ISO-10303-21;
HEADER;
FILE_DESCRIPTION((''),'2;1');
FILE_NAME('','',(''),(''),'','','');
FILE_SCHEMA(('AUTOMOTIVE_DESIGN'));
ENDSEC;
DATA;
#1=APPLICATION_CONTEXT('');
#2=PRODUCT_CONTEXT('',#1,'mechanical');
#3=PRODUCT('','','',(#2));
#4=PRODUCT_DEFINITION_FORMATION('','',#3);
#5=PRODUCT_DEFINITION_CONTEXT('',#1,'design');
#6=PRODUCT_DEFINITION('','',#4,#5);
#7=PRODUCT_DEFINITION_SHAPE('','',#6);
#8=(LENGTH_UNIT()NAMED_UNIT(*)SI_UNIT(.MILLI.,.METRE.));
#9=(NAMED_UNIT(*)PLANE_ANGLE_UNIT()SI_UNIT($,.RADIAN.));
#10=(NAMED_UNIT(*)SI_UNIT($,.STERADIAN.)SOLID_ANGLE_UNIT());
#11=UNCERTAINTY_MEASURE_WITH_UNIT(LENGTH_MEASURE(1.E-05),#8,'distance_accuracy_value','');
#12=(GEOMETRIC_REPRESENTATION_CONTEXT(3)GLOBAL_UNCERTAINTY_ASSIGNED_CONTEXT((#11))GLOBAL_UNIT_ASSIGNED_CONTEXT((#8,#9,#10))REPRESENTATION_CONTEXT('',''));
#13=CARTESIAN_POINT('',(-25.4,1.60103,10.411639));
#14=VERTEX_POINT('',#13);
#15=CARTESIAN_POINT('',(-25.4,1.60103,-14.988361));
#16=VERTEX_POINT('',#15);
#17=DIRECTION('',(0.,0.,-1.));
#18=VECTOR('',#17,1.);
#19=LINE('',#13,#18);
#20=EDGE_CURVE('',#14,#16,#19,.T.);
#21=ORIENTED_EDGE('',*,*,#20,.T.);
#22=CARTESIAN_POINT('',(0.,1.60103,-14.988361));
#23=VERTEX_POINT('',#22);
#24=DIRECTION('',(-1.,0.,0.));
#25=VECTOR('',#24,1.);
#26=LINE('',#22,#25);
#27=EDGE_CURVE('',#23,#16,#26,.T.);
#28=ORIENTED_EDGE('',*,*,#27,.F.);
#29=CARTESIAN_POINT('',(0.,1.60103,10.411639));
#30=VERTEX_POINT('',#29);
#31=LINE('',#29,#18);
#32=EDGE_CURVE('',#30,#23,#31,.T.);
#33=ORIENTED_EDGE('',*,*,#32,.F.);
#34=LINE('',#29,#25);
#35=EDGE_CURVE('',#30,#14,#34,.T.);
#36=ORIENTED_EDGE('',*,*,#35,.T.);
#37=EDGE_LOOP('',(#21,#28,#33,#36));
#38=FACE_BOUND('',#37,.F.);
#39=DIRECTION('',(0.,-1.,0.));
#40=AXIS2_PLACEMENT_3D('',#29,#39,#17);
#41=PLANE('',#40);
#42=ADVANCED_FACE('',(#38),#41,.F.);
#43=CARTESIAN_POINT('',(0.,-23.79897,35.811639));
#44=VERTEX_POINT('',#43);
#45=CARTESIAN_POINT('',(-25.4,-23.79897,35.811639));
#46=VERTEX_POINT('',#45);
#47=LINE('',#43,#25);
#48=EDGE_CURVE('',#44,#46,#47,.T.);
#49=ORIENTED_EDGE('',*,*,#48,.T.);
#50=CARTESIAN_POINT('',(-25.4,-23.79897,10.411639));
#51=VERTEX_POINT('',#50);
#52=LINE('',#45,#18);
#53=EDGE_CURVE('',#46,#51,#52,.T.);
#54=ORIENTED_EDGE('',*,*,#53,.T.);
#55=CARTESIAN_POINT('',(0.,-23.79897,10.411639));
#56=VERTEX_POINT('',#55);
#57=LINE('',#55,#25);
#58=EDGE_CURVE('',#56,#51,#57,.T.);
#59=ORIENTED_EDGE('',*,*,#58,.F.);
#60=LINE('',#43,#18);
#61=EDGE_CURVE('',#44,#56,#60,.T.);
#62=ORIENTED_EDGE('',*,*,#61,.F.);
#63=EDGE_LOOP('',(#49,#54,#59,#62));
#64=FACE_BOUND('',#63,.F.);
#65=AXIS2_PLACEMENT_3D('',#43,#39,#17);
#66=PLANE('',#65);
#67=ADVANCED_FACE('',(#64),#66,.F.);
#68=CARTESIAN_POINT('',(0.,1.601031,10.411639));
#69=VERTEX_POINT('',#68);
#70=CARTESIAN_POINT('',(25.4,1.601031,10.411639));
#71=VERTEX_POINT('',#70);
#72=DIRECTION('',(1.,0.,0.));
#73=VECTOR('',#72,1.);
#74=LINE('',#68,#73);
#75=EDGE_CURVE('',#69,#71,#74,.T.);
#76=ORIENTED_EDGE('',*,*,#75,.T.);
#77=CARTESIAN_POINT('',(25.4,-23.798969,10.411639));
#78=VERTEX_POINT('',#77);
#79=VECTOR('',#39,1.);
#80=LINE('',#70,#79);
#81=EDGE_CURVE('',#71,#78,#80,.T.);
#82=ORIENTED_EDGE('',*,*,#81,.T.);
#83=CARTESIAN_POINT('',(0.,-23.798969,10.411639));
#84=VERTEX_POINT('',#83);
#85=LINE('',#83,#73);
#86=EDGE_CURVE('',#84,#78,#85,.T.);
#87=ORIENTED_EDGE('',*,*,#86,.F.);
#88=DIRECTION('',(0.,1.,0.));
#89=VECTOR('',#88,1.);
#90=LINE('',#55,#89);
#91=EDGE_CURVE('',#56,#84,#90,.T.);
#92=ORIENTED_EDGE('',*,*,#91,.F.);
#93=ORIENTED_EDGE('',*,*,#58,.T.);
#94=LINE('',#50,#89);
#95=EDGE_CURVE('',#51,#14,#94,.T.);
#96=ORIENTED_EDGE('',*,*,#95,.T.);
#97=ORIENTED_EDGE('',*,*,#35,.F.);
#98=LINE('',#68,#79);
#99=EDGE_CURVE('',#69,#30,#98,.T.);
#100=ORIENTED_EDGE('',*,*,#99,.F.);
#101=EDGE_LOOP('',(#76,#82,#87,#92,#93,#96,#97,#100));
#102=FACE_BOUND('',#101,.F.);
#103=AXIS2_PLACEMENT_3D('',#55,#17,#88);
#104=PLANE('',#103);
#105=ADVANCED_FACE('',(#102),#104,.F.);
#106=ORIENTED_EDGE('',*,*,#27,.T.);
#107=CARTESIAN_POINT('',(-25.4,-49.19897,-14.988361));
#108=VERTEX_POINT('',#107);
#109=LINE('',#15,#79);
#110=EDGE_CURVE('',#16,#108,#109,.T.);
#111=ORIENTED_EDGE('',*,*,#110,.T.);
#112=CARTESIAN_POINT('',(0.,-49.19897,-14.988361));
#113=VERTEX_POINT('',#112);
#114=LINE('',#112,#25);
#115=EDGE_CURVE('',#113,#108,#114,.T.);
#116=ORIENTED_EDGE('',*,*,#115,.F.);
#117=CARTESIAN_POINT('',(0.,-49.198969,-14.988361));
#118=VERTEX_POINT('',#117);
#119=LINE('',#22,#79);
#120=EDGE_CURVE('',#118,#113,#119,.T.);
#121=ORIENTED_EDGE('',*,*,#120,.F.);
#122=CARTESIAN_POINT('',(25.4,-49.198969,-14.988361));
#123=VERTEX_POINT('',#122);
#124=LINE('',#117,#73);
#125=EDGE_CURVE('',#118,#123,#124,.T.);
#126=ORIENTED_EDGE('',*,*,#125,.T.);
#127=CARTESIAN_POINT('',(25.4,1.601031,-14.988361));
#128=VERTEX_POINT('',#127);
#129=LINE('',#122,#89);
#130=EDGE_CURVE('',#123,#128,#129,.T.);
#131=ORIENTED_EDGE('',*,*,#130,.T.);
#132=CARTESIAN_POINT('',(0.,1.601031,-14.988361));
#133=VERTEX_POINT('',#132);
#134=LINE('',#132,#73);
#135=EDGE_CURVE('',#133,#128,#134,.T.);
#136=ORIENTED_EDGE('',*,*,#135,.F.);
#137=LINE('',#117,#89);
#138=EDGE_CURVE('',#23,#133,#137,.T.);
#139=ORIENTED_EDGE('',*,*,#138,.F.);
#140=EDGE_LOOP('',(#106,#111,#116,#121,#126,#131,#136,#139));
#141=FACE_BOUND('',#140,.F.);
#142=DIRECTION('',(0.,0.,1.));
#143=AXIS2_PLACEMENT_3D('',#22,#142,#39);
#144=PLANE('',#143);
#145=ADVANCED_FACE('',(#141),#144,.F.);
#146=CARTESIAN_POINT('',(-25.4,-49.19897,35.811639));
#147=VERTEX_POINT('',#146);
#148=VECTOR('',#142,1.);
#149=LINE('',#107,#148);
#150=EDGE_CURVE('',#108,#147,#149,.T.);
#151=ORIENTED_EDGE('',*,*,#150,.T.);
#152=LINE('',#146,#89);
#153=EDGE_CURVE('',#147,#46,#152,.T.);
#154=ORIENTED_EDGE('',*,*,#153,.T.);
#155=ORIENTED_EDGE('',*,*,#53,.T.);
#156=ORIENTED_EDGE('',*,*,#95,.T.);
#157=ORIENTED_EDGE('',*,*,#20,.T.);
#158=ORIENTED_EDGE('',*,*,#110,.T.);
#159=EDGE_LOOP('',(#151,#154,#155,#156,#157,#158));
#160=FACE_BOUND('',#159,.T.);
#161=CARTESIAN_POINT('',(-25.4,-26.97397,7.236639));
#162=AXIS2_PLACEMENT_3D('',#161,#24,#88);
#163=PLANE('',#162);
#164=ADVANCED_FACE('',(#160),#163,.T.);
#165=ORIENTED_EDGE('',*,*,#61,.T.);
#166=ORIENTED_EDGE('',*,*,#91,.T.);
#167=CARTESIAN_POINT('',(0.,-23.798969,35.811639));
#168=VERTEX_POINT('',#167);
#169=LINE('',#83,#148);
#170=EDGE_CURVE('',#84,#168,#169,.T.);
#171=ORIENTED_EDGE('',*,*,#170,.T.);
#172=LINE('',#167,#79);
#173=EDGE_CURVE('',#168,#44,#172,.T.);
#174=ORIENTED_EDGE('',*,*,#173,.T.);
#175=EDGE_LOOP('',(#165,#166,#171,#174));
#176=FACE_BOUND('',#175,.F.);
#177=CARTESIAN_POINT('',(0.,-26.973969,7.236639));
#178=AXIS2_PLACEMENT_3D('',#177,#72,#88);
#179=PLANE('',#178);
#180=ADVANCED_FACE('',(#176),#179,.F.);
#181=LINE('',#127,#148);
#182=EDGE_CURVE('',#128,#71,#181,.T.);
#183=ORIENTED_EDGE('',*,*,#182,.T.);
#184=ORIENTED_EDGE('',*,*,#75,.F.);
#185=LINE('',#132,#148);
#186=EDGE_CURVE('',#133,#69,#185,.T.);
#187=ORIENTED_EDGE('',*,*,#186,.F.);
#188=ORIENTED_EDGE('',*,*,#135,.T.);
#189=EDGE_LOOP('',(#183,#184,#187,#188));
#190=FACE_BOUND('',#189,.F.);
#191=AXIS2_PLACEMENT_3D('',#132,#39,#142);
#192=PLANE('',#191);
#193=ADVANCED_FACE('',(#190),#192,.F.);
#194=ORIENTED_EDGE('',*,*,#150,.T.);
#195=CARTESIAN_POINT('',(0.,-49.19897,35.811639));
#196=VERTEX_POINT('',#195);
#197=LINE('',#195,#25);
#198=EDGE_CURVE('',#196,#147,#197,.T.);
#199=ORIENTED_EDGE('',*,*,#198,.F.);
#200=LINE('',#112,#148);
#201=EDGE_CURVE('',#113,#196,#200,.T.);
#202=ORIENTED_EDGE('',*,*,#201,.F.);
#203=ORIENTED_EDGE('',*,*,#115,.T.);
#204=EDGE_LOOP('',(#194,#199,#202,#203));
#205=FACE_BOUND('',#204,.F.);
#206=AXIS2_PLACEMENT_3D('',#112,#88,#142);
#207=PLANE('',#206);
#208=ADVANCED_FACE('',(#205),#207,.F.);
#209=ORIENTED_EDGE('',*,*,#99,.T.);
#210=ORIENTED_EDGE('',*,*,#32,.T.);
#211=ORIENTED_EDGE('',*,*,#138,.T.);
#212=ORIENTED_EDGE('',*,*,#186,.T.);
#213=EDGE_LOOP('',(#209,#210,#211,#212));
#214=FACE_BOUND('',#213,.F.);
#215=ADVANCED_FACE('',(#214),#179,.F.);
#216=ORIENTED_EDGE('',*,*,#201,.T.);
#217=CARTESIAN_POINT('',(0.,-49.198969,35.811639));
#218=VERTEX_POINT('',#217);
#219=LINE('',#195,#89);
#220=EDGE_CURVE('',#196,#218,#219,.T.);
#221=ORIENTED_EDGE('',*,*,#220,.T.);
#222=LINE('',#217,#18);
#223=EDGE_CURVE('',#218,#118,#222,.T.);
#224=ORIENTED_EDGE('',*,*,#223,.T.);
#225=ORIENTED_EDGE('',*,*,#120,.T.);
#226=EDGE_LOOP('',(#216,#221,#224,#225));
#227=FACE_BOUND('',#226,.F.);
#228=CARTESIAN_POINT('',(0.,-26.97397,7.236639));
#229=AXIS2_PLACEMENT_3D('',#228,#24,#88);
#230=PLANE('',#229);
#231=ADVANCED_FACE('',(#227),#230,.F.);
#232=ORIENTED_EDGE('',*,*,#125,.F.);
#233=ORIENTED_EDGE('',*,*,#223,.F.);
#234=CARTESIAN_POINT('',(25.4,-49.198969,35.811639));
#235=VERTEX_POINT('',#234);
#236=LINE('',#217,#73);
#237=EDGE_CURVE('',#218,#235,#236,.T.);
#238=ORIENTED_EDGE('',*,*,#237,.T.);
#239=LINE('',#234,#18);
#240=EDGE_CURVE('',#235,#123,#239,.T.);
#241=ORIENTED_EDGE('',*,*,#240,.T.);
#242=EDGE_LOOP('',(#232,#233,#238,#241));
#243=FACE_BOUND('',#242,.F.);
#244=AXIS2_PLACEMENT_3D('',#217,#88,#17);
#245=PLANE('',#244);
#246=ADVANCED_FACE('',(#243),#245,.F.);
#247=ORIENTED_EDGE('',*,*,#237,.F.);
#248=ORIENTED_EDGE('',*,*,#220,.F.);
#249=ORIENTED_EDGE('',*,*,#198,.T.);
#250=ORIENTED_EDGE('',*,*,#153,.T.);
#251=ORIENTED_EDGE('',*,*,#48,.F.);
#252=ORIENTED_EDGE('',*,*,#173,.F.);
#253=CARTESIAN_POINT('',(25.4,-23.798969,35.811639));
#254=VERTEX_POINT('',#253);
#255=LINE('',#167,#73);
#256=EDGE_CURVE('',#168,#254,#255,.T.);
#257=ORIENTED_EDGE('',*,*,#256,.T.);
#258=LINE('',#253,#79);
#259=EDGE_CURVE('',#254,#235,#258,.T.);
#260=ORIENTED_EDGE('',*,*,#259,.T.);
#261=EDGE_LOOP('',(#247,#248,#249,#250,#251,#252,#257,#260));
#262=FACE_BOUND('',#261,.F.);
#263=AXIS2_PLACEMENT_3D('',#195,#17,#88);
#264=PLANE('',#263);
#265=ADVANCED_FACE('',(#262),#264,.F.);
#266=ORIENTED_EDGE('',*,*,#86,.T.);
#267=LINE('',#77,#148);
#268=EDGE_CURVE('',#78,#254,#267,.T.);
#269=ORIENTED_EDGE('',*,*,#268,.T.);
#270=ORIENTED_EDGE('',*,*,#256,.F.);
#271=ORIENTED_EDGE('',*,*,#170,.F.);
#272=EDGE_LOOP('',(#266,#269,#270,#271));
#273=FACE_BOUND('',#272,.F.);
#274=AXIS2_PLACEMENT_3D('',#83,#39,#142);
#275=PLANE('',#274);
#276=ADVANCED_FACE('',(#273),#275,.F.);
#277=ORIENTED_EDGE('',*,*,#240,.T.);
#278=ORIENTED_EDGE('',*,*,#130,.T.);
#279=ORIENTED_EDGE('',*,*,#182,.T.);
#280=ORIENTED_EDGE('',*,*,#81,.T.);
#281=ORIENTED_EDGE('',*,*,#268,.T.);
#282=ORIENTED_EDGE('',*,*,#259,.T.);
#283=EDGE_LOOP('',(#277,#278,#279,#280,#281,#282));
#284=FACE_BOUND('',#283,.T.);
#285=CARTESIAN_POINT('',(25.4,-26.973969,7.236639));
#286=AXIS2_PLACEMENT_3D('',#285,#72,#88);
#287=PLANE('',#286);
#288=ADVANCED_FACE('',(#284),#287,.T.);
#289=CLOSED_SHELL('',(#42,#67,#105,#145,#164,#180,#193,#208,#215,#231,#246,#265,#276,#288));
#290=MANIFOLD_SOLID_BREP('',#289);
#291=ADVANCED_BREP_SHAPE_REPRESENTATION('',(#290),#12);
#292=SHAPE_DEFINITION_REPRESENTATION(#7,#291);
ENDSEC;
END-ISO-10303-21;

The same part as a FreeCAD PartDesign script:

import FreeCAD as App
import Part
import Sketcher
Q = App.Units.Quantity

doc = App.newDocument("Part")
body = doc.addObject("PartDesign::Body", "Body")

# Sketch on YZ plane
sketch1 = body.newObject("Sketcher::SketchObject", "Sketch")
sketch1.AttachmentSupport = (doc.getObject("YZ_Plane"), [""])
sketch1.MapMode = "FlatFace"
sketch1.addGeometry([
    Part.LineSegment(App.Vector(-24, 36, 0), App.Vector(-49, 36, 0)),  # 0
    Part.LineSegment(App.Vector(-49, 36, 0), App.Vector(-49, -15, 0)),  # 1
    Part.LineSegment(App.Vector(-49, -15, 0), App.Vector(2, -15, 0)),  # 2
    Part.LineSegment(App.Vector(2, -15, 0), App.Vector(2, 10, 0)),  # 3
    Part.LineSegment(App.Vector(2, 10, 0), App.Vector(-24, 10, 0)),  # 4
    Part.LineSegment(App.Vector(-24, 10, 0), App.Vector(-24, 36, 0)),  # 5
], False)
sketch1.addConstraint([
    Sketcher.Constraint("Coincident", 0, 2, 1, 1),
    Sketcher.Constraint("Coincident", 1, 2, 2, 1),
    Sketcher.Constraint("Coincident", 2, 2, 3, 1),
    Sketcher.Constraint("Coincident", 3, 2, 4, 1),
    Sketcher.Constraint("Coincident", 4, 2, 5, 1),
    Sketcher.Constraint("Coincident", 5, 2, 0, 1),
    Sketcher.Constraint("Horizontal", 0),
    Sketcher.Constraint("Vertical", 1),
    Sketcher.Constraint("Horizontal", 2),
    Sketcher.Constraint("Vertical", 3),
    Sketcher.Constraint("Horizontal", 4),
    Sketcher.Constraint("Vertical", 5),
    Sketcher.Constraint("Equal", 0, 4),
    Sketcher.Constraint("Equal", 2, 1),
    Sketcher.Constraint("Equal", 4, 3),
    Sketcher.Constraint("DistanceX", 0, 2, 0, 1, Q("1 in")),
    Sketcher.Constraint("DistanceX", 0, 2, -1, 1, 49.198969),
    Sketcher.Constraint("DistanceY", -1, 1, 0, 2, 35.811639),
])
pad1 = body.newObject("PartDesign::Pad", "Pad")
pad1.Profile = sketch1
pad1.Length = Q("1 in")

# Sketch on YZ plane
sketch2 = body.newObject("Sketcher::SketchObject", "Sketch001")
sketch2.AttachmentSupport = (doc.getObject("YZ_Plane"), [""])
sketch2.MapMode = "FlatFace"
sketch2.addGeometry([
    Part.LineSegment(App.Vector(-24, 36, 0), App.Vector(-24, 10, 0)),  # 0
    Part.LineSegment(App.Vector(-24, 10, 0), App.Vector(2, 10, 0)),  # 1
    Part.LineSegment(App.Vector(2, 10, 0), App.Vector(2, -15, 0)),  # 2
    Part.LineSegment(App.Vector(2, -15, 0), App.Vector(-49, -15, 0)),  # 3
    Part.LineSegment(App.Vector(-49, -15, 0), App.Vector(-49, 36, 0)),  # 4
    Part.LineSegment(App.Vector(-49, 36, 0), App.Vector(-24, 36, 0)),  # 5
], False)
sketch2.addConstraint([
    Sketcher.Constraint("Coincident", 0, 2, 1, 1),
    Sketcher.Constraint("Coincident", 1, 2, 2, 1),
    Sketcher.Constraint("Coincident", 2, 2, 3, 1),
    Sketcher.Constraint("Coincident", 3, 2, 4, 1),
    Sketcher.Constraint("Coincident", 4, 2, 5, 1),
    Sketcher.Constraint("Coincident", 5, 2, 0, 1),
    Sketcher.Constraint("Vertical", 0),
    Sketcher.Constraint("Horizontal", 1),
    Sketcher.Constraint("Vertical", 2),
    Sketcher.Constraint("Horizontal", 3),
    Sketcher.Constraint("Vertical", 4),
    Sketcher.Constraint("Horizontal", 5),
    Sketcher.Constraint("Equal", 1, 5),
    Sketcher.Constraint("Equal", 5, 0),
    Sketcher.Constraint("Equal", 0, 2),
    Sketcher.Constraint("DistanceX", 1, 1, 1, 2, Q("1 in")),
    Sketcher.Constraint("DistanceX", 0, 2, -1, 1, 23.79897),
    Sketcher.Constraint("DistanceY", -1, 1, 0, 2, 10.411639),
])
pad2 = body.newObject("PartDesign::Pad", "Pad001")
pad2.Profile = sketch2
pad2.Length = Q("1 in")
pad2.Reversed = True

doc.recompute()
